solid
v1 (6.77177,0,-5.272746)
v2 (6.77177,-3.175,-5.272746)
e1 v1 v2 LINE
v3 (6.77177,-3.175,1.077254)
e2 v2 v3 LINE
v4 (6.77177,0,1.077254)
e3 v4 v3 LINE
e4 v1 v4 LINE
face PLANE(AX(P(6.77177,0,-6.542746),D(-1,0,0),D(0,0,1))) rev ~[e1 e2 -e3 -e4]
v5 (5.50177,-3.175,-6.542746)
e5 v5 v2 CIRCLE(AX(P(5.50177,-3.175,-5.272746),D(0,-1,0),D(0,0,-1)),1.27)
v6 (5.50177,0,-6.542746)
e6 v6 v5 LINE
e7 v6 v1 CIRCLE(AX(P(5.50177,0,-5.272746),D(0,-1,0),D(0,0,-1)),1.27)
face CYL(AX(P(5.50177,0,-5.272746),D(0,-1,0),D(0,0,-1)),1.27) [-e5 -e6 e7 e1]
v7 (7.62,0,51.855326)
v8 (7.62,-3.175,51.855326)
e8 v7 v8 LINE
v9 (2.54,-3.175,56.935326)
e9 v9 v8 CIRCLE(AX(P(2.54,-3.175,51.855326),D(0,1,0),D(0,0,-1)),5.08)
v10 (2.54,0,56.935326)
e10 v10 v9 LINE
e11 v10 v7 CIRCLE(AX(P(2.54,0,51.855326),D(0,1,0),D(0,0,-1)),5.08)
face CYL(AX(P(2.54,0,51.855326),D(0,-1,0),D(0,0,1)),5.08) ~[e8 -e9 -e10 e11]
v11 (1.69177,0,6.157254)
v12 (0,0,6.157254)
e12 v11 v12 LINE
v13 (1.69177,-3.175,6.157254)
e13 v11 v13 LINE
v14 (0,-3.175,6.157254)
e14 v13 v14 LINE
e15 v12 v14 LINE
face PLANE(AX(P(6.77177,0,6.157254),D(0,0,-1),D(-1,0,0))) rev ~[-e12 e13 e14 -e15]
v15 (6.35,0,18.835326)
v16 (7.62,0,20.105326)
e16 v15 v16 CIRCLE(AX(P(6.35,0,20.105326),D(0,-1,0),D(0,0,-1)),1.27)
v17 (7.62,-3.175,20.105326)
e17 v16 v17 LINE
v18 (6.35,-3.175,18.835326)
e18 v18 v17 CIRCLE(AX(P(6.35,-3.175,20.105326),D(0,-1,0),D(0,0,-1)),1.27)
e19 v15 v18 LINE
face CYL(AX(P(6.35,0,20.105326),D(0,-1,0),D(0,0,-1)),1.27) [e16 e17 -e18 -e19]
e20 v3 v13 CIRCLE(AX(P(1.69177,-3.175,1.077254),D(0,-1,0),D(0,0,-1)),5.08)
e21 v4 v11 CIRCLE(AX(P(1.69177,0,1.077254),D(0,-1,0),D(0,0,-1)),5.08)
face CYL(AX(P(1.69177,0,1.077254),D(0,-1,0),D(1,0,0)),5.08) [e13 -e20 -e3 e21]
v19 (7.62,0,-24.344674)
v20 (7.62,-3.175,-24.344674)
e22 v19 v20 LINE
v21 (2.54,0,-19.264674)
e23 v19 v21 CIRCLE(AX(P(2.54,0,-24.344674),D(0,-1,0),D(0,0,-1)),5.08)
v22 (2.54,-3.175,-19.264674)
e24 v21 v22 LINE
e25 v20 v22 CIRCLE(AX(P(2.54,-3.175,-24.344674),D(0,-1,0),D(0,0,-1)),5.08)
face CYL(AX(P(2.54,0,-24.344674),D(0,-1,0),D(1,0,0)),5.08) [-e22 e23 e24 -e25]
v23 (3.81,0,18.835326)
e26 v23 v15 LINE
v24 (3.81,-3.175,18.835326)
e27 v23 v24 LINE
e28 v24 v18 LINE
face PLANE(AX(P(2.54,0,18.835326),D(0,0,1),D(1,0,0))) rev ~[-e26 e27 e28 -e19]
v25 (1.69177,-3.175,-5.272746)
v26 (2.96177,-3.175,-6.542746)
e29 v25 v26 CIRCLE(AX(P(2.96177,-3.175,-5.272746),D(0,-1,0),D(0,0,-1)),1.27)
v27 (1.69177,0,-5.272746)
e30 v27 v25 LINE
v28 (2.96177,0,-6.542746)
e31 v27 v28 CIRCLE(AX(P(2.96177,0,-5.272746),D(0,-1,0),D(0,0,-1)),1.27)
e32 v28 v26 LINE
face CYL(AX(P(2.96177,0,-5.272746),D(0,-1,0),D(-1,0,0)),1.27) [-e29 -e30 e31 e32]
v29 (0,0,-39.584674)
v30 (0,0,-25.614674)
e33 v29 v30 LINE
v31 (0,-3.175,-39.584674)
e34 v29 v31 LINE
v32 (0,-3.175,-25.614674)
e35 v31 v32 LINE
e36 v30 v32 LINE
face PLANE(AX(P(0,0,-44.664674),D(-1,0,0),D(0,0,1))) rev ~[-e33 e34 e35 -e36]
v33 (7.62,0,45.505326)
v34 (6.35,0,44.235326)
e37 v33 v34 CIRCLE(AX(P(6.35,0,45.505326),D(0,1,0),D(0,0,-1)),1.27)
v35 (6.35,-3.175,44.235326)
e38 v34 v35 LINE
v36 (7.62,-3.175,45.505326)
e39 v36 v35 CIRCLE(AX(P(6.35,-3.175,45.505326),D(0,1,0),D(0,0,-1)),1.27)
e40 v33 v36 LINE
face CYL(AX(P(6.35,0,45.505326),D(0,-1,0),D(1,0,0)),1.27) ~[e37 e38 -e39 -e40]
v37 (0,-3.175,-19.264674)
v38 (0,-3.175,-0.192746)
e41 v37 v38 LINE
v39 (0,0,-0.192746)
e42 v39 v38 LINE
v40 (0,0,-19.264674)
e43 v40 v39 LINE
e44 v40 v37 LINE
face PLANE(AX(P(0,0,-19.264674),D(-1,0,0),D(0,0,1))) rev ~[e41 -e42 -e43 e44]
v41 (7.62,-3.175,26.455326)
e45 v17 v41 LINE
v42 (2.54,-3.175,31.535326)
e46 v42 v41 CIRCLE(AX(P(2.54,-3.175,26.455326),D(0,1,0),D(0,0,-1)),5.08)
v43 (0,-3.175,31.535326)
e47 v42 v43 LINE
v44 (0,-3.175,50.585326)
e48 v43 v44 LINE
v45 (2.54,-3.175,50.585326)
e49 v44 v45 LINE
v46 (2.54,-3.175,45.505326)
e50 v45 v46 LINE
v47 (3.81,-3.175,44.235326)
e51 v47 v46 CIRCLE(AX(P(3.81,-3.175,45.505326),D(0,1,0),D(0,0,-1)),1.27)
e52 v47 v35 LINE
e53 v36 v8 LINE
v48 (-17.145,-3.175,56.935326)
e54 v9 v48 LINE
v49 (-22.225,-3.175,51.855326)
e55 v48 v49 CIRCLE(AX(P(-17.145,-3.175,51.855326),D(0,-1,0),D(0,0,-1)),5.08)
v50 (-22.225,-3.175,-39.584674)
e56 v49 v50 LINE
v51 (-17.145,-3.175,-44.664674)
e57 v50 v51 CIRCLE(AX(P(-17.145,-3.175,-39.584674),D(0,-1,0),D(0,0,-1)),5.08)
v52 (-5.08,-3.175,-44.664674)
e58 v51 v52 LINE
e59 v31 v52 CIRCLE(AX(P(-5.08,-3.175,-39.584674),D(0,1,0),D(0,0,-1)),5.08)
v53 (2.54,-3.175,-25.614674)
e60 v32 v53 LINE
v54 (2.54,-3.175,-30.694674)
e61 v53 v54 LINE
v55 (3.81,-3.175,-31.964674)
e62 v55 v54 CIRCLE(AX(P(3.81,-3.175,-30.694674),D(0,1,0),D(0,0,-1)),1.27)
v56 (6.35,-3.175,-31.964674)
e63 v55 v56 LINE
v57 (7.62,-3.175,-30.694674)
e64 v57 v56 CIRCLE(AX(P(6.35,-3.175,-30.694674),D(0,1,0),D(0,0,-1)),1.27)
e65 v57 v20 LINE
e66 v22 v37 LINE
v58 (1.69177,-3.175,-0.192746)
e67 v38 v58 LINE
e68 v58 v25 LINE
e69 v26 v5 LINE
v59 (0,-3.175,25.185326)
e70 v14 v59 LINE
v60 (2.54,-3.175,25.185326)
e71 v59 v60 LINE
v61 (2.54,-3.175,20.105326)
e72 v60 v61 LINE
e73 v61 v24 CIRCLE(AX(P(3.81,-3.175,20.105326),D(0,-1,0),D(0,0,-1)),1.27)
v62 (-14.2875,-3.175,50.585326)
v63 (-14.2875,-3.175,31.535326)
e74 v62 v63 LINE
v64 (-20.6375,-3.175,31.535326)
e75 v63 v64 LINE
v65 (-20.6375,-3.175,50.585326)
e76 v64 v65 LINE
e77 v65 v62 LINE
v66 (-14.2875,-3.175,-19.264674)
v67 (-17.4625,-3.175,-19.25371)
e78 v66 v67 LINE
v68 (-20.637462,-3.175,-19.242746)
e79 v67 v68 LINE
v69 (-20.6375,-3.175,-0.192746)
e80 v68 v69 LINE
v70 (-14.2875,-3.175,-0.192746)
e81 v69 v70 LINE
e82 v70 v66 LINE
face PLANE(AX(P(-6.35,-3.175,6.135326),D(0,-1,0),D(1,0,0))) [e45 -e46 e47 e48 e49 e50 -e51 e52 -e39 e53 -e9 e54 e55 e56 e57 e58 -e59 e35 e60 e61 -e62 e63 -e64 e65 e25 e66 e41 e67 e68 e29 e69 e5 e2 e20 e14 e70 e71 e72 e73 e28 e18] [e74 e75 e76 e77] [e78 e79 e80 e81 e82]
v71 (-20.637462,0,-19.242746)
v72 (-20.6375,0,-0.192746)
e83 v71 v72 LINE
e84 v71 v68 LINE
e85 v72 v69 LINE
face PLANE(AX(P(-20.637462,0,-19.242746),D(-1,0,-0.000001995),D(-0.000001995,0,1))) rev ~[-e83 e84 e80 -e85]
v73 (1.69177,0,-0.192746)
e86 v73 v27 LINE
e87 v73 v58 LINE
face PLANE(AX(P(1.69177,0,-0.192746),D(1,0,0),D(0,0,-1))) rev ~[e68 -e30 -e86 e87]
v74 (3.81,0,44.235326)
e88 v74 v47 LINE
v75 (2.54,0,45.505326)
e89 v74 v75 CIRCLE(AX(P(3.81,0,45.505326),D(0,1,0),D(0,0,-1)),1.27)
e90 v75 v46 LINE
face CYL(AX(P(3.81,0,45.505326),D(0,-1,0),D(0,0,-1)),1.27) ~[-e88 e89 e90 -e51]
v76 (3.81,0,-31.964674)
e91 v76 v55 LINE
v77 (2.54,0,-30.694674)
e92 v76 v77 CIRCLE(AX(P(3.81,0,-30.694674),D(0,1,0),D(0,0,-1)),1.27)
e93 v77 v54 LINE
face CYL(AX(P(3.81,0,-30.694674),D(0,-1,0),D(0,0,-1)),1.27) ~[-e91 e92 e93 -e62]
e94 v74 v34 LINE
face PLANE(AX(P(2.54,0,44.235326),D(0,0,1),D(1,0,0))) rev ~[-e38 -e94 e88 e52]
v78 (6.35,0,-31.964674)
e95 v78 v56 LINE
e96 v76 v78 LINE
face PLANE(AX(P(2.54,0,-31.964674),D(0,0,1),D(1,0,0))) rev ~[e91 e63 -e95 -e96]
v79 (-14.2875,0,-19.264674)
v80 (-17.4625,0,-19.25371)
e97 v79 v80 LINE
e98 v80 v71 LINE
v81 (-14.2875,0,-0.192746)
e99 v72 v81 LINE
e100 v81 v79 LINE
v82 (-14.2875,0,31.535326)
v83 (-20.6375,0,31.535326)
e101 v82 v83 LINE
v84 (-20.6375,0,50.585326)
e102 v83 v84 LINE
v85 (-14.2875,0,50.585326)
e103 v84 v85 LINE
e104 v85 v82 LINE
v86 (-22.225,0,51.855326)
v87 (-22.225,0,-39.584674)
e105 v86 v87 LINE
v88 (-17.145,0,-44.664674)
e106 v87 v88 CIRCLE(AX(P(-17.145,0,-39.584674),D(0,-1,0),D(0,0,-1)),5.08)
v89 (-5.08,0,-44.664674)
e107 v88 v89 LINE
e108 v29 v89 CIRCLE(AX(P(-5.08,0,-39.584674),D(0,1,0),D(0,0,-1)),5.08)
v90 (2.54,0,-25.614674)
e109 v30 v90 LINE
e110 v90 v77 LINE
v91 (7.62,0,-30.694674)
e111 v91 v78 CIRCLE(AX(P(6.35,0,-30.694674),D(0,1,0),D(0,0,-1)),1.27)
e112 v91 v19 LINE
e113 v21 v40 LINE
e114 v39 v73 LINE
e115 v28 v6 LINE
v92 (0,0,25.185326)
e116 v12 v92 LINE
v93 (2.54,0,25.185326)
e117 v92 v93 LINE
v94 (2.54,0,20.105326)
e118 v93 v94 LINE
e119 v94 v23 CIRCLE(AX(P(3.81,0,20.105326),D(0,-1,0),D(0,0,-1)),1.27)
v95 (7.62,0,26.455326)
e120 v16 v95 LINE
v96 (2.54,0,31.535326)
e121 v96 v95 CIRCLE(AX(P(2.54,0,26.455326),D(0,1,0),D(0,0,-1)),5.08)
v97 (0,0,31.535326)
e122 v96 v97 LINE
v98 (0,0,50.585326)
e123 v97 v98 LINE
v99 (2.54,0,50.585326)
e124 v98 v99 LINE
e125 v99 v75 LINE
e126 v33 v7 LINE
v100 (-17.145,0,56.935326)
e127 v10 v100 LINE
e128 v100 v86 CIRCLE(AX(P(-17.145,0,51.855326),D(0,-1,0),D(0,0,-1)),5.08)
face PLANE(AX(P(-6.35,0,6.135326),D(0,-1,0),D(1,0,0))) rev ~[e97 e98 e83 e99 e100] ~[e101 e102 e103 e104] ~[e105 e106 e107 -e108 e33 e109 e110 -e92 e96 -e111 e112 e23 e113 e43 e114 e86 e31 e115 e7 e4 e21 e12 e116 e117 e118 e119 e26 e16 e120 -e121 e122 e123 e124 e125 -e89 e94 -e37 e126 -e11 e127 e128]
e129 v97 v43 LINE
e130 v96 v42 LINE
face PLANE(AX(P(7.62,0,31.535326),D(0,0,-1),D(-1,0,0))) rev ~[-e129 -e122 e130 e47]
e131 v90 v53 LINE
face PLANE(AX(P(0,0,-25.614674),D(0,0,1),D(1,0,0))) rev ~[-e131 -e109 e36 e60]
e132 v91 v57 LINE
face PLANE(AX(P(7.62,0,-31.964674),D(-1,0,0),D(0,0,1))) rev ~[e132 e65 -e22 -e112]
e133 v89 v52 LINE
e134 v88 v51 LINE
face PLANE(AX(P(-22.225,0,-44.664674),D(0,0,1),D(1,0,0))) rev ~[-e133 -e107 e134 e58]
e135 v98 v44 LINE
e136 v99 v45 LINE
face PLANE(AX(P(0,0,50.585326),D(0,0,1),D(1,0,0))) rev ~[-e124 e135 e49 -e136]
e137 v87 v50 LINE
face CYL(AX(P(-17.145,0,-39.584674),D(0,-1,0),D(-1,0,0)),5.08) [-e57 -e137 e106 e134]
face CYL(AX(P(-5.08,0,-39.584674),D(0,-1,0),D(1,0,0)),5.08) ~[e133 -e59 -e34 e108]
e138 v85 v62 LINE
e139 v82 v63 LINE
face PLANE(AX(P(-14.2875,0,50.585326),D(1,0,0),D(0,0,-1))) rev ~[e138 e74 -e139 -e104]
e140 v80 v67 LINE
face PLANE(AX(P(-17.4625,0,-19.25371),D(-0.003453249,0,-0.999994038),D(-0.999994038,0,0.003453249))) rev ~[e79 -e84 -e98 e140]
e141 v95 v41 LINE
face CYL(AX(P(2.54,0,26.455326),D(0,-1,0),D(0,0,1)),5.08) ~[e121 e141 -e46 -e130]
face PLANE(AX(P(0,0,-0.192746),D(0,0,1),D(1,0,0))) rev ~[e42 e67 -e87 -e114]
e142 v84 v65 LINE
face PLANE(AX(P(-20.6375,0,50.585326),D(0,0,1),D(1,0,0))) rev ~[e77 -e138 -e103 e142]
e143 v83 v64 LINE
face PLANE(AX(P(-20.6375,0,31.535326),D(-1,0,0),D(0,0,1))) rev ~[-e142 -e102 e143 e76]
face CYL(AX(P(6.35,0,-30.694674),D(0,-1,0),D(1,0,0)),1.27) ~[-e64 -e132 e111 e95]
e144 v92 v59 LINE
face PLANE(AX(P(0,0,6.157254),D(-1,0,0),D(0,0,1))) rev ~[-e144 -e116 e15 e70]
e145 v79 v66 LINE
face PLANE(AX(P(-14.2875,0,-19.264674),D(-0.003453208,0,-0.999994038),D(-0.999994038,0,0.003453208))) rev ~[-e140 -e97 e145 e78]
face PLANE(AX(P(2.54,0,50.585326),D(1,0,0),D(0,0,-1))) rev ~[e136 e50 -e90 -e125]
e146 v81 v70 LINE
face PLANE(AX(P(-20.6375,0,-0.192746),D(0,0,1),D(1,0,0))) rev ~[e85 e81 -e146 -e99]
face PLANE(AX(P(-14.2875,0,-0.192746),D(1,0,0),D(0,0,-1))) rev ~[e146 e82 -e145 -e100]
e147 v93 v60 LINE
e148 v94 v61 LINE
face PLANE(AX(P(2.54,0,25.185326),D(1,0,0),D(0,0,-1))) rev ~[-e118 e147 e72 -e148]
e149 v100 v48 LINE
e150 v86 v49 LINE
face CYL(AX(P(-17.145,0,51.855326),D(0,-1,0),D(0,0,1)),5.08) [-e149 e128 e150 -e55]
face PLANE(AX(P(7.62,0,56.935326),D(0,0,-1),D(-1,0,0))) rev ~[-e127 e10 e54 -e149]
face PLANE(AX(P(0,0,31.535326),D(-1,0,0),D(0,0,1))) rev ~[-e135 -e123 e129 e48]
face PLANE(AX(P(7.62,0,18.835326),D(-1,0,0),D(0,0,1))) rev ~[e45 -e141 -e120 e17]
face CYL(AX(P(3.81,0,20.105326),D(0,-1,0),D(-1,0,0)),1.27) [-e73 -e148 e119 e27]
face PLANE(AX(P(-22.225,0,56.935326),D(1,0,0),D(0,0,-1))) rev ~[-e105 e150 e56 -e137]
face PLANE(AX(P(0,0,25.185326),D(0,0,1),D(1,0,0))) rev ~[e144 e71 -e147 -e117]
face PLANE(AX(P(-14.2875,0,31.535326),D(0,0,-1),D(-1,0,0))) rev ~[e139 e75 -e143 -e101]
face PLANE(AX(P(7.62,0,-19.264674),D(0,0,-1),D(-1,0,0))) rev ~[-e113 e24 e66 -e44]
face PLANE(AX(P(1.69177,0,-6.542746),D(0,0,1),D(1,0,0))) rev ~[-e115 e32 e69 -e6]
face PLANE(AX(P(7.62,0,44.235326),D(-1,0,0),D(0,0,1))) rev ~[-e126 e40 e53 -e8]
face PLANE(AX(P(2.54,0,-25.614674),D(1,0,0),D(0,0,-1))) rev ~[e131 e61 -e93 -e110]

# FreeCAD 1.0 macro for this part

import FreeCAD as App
import Part
import Sketcher
from FreeCAD import Vector
Q = App.Units.Quantity


def edges_at(feature, points):
    """Names of the edges that pass closest to the given points."""
    edges = feature.Shape.Edges
    near = lambda p: min(range(len(edges)), key=lambda i: edges[i].distToShape(Part.Vertex(*p))[0])
    return sorted({f"Edge{near(p) + 1}" for p in points})


def add_polygon(sketch, points):
    """Adds a closed chain of lines whose ends are joined by coincident constraints."""
    first, n = sketch.GeometryCount, len(points)
    for a, b in zip(points, points[1:] + points[:1]):
        sketch.addGeometry(Part.LineSegment(App.Vector(*a, 0), App.Vector(*b, 0)), False)
    for i in range(n):
        sketch.addConstraint(Sketcher.Constraint("Coincident", first + i, 2, first + (i + 1) % n, 1))

doc = App.newDocument("Part")
body = doc.addObject("PartDesign::Body", "Body")

# Sketch on XZ plane
sketch1 = body.newObject("Sketcher::SketchObject", "Sketch")
sketch1.AttachmentSupport = (doc.getObject("XZ_Plane"), [""])
sketch1.MapMode = "FlatFace"
add_polygon(sketch1, [(0, -44.7), (0, -25.6), (2.5, -25.6), (2.5, -32), (7.6, -32), (7.6, -19.3), (0, -19.3), (0, -0.2), (1.7, -0.2), (1.7, -6.5), (6.8, -6.5), (6.8, 6.2), (0, 6.2), (0, 25.2), (2.5, 25.2), (2.5, 18.8), (7.6, 18.8), (7.6, 31.5), (0, 31.5), (0, 50.6), (2.5, 50.6), (2.5, 44.2), (7.6, 44.2), (7.6, 56.9), (-22.2, 56.9), (-22.2, -44.7)])  # lines 0-25
add_polygon(sketch1, [(-14.3, 50.6), (-14.3, 31.5), (-20.6, 31.5), (-20.6, 50.6)])  # lines 26-29
add_polygon(sketch1, [(-14.3, -0.2), (-14.3, -19.3), (-17.5, -19.3), (-20.6, -19.2), (-20.6, -0.2)])  # lines 30-34
sketch1.addConstraint([
    Sketcher.Constraint("Vertical", 0),
    Sketcher.Constraint("Horizontal", 1),
    Sketcher.Constraint("Vertical", 2),
    Sketcher.Constraint("Horizontal", 3),
    Sketcher.Constraint("Vertical", 4),
    Sketcher.Constraint("Horizontal", 5),
    Sketcher.Constraint("Vertical", 6),
    Sketcher.Constraint("Horizontal", 7),
    Sketcher.Constraint("Vertical", 8),
    Sketcher.Constraint("Horizontal", 9),
    Sketcher.Constraint("Vertical", 10),
    Sketcher.Constraint("Horizontal", 11),
    Sketcher.Constraint("Vertical", 12),
    Sketcher.Constraint("Horizontal", 13),
    Sketcher.Constraint("Vertical", 14),
    Sketcher.Constraint("Horizontal", 15),
    Sketcher.Constraint("Vertical", 16),
    Sketcher.Constraint("Horizontal", 17),
    Sketcher.Constraint("Vertical", 18),
    Sketcher.Constraint("Horizontal", 19),
    Sketcher.Constraint("Vertical", 20),
    Sketcher.Constraint("Horizontal", 21),
    Sketcher.Constraint("Vertical", 22),
    Sketcher.Constraint("Horizontal", 23),
    Sketcher.Constraint("Vertical", 24),
    Sketcher.Constraint("Horizontal", 25),
    Sketcher.Constraint("Vertical", 26),
    Sketcher.Constraint("Horizontal", 27),
    Sketcher.Constraint("Vertical", 28),
    Sketcher.Constraint("Horizontal", 29),
    Sketcher.Constraint("Vertical", 30),
    Sketcher.Constraint("Horizontal", 34),
    Sketcher.Constraint("PointOnObject", 0, 2, -2),
    Sketcher.Constraint("PointOnObject", 5, 2, -2),
    Sketcher.Constraint("PointOnObject", 11, 2, -2),
    Sketcher.Constraint("PointOnObject", 17, 2, -2),
    Sketcher.Constraint("Parallel", 31, 32),
    Sketcher.Constraint("Horizontal", 17, 2, 26, 2),
    Sketcher.Constraint("Horizontal", 19, 2, 28, 2),
    Sketcher.Constraint("Horizontal", 5, 2, 30, 2),
    Sketcher.Constraint("Horizontal", 7, 2, 33, 2),
    Sketcher.Constraint("Vertical", 2, 2, 13, 2),
    Sketcher.Constraint("Vertical", 4, 2, 15, 2),
    Sketcher.Constraint("Vertical", 14, 2, 19, 2),
    Sketcher.Constraint("Vertical", 16, 2, 21, 2),
    Sketcher.Constraint("Vertical", 29, 2, 30, 2),
    Sketcher.Constraint("Vertical", 28, 2, 33, 2),
    Sketcher.Constraint("Equal", 3, 9),
    Sketcher.Constraint("Equal", 34, 2),
    Sketcher.Constraint("Equal", 2, 8),
    Sketcher.Constraint("Equal", 4, 10),
    Sketcher.Constraint("Equal", 8, 14),
    Sketcher.Constraint("Equal", 10, 16),
    Sketcher.Constraint("Equal", 0, 18),
    Sketcher.Constraint("Equal", 14, 20),
    Sketcher.Constraint("Equal", 16, 22),
    Sketcher.Constraint("DistanceY", 24, 2, 24, 1, Q("4 in")),
    Sketcher.Constraint("DistanceX", 1, 1, 1, 2, Q("0.1 in")),
    Sketcher.Constraint("DistanceX", 3, 1, 3, 2, Q("0.2 in")),
    Sketcher.Constraint("DistanceY", 4, 1, 4, 2, Q("0.5 in")),
    Sketcher.Constraint("DistanceY", 12, 2, 18, 2, Q("1 in")),
    Sketcher.Constraint("DistanceX", 27, 2, 27, 1, Q("0.25 in")),
    Sketcher.Constraint("Distance", 33, Q("0.75 in")),
    Sketcher.Constraint("DistanceX", 23, 2, 23, 1, Q("1.175 in")),
    Sketcher.Constraint("DistanceX", 26, 2, -1, 1, Q("0.5625 in")),
    Sketcher.Constraint("DistanceX", 31, 2, -1, 1, Q("0.6875 in")),
    Sketcher.Constraint("DistanceX", 7, 1, 7, 2, 1.69177),
    Sketcher.Constraint("DistanceY", 6, 1, 6, 2, 19.071928),
    Sketcher.Constraint("Distance", 32, 3.174981),
    Sketcher.Constraint("DistanceY", 31, 2, -1, 1, 19.25371),
])
pad1 = body.newObject("PartDesign::Pad", "Pad")
pad1.Profile = sketch1
pad1.Length = Q("0.125 in")
doc.recompute()

fillet = body.newObject("PartDesign::Fillet", "Fillet")
fillet.Base = (pad1, edges_at(pad1, [(-22.225, -1.587, 56.935), (-22.225, -1.587, -44.665), (0, -1.587, -44.665)]))
fillet.Radius = Q("0.2 in")
doc.recompute()

fillet2 = body.newObject("PartDesign::Fillet", "Fillet001")
fillet2.Base = (fillet, edges_at(fillet, [
    (7.62, -1.587, 31.535),
    (6.772, -1.587, 6.157),
    (7.62, -1.587, -19.265),
    (7.62, -1.587, 56.935),
]))
fillet2.Radius = Q("0.2 in")
doc.recompute()

fillet3 = body.newObject("PartDesign::Fillet", "Fillet002")
fillet3.Base = (fillet2, edges_at(fillet2, [
    (7.62, -1.587, 18.835),
    (2.54, -1.587, 18.835),
    (6.772, -1.587, -6.543),
    (1.692, -1.587, -6.543),
    (2.54, -1.587, 44.235),
    (7.62, -1.587, 44.235),
    (7.62, -1.587, -31.965),
    (2.54, -1.587, -31.965),
]))
fillet3.Radius = Q("0.05 in")

doc.recompute()
